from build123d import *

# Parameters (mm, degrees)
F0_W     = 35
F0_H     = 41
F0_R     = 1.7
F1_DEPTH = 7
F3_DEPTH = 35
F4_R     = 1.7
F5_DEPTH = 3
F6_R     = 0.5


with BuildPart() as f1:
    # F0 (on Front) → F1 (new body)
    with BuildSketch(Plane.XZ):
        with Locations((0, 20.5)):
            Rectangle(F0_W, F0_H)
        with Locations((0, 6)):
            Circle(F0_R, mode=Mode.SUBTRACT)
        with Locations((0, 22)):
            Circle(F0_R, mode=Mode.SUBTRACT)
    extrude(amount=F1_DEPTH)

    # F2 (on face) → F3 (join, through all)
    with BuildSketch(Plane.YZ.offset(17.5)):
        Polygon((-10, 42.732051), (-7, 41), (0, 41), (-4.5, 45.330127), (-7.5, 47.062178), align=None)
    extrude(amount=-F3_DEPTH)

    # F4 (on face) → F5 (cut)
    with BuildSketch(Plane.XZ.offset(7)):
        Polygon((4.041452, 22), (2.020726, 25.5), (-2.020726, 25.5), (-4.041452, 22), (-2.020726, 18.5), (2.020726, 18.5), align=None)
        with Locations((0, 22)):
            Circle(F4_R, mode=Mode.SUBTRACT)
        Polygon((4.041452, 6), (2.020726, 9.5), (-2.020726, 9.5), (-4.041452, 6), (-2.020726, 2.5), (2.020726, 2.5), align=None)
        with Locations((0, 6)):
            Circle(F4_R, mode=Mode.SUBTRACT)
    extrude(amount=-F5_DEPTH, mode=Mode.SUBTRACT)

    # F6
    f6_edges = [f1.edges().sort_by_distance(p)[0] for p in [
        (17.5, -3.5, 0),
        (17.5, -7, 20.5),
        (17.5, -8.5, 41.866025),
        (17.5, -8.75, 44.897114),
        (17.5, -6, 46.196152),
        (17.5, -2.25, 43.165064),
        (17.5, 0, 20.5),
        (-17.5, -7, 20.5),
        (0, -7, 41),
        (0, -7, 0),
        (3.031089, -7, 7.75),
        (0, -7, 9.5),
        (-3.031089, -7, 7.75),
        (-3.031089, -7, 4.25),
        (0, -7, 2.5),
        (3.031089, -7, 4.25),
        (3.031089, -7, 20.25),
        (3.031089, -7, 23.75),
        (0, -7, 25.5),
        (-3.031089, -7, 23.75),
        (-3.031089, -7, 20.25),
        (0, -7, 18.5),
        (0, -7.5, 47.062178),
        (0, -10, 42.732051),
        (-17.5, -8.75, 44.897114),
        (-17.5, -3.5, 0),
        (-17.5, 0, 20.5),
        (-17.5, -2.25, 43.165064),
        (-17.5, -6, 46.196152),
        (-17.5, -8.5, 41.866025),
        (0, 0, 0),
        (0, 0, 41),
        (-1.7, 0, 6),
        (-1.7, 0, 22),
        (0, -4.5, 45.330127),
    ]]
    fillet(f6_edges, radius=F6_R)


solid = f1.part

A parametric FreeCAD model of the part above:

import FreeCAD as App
import Part
import Sketcher

V = App.Vector
Q = App.Units.Quantity


def edges_at(feature, points):
    """Names of the edges that pass closest to the given points."""
    edges = feature.Shape.Edges
    near = lambda p: min(range(len(edges)), key=lambda i: edges[i].distToShape(Part.Vertex(*p))[0])
    return sorted({f"Edge{near(p) + 1}" for p in points})

doc = App.newDocument("Part")
params = doc.addObject("Spreadsheet::Sheet", "Params")
for row, (alias, value) in enumerate([
    ("sketch1_diameter", "3.4 mm"),
    ("sketch1_width", "35 mm"),
    ("sketch1_height", "41 mm"),
    ("pad1_length", "7 mm"),
    ("sketch2_width", "7 mm"),
    ("sketch2_length", "5 mm"),
    ("pad2_length", "35 mm"),
    ("sketch3_diameter", "3.4 mm"),
    ("pocket1_length", "3 mm"),
    ("fillet_radius", "0.5 mm"),
], start=1):
    params.set(f"A{row}", alias)
    params.set(f"B{row}", "=" + value)
    params.setAlias(f"B{row}", alias)

body = doc.addObject("PartDesign::Body", "Body")

# Sketch on XZ plane
sketch1 = body.newObject("Sketcher::SketchObject", "Sketch")
sketch1.AttachmentSupport = (doc.getObject("XZ_Plane"), [""])
sketch1.MapMode = "FlatFace"
sketch1.addGeometry([
    Part.LineSegment(V(-17.5, 41, 0), V(-17.5, 0, 0)),  # 0
    Part.LineSegment(V(-17.5, 0, 0), V(17.5, 0, 0)),  # 1
    Part.LineSegment(V(17.5, 0, 0), V(17.5, 41, 0)),  # 2
    Part.LineSegment(V(17.5, 41, 0), V(-17.5, 41, 0)),  # 3
    Part.Circle(V(0, 6, 0), V(0, 0, 1), 1.7),  # 4
    Part.Circle(V(0, 22, 0), V(0, 0, 1), 1.7),  # 5
], False)
sketch1.addConstraint([
    Sketcher.Constraint("Coincident", 0, 2, 1, 1),
    Sketcher.Constraint("Coincident", 1, 2, 2, 1),
    Sketcher.Constraint("Coincident", 2, 2, 3, 1),
    Sketcher.Constraint("Coincident", 3, 2, 0, 1),
    Sketcher.Constraint("Vertical", 0),
    Sketcher.Constraint("Horizontal", 1),
    Sketcher.Constraint("Vertical", 2),
    Sketcher.Constraint("Horizontal", 3),
    Sketcher.Constraint("Equal", 4, 5),
    Sketcher.Constraint("Symmetric", 0, 2, 1, 2, -1, 1),
    Sketcher.Constraint("PointOnObject", 4, 3, -2),
    Sketcher.Constraint("PointOnObject", 5, 3, -2),
    Sketcher.Constraint("Diameter", 4, 3.4),
    Sketcher.Constraint("DistanceX", 1, 1, 1, 2, 35.0),
    Sketcher.Constraint("DistanceY", 0, 2, 0, 1, 41.0),
    Sketcher.Constraint("DistanceY", -1, 1, 4, 3, 6.0),
    Sketcher.Constraint("DistanceY", -1, 1, 5, 3, 22.0),
])
sketch1.setExpression("Constraints[12]", "Params.sketch1_diameter")
sketch1.setExpression("Constraints[13]", "Params.sketch1_width")
sketch1.setExpression("Constraints[14]", "Params.sketch1_height")
pad1 = body.newObject("PartDesign::Pad", "Pad")
pad1.Profile = sketch1
pad1.setExpression("Length", "Params.pad1_length")

# Sketch on YZ plane
sketch2 = body.newObject("Sketcher::SketchObject", "Sketch001")
sketch2.AttachmentSupport = (doc.getObject("YZ_Plane"), [""])
sketch2.MapMode = "FlatFace"
sketch2.AttachmentOffset = App.Placement(V(0, 0, 17.5), App.Rotation())
sketch2.addGeometry([
    Part.LineSegment(V(-10, 42.7, 0), V(-7, 41, 0)),  # 0
    Part.LineSegment(V(-7, 41, 0), V(0, 41, 0)),  # 1
    Part.LineSegment(V(0, 41, 0), V(-4.5, 45.3, 0)),  # 2
    Part.LineSegment(V(-4.5, 45.3, 0), V(-7.5, 47.1, 0)),  # 3
    Part.LineSegment(V(-7.5, 47.1, 0), V(-10, 42.7, 0)),  # 4
], False)
sketch2.addConstraint([
    Sketcher.Constraint("Coincident", 0, 2, 1, 1),
    Sketcher.Constraint("Coincident", 1, 2, 2, 1),
    Sketcher.Constraint("Coincident", 2, 2, 3, 1),
    Sketcher.Constraint("Coincident", 3, 2, 4, 1),
    Sketcher.Constraint("Coincident", 4, 2, 0, 1),
    Sketcher.Constraint("Horizontal", 1),
    Sketcher.Constraint("PointOnObject", 1, 2, -2),
    Sketcher.Constraint("Parallel", 0, 3),
    Sketcher.Constraint("Perpendicular", 3, 4),
    Sketcher.Constraint("Equal", 0, 3),
    Sketcher.Constraint("DistanceX", 1, 1, 1, 2, 7.0),
    Sketcher.Constraint("Angle", 0, Q("-30.000003 deg")),
    Sketcher.Constraint("Distance", 4, 5.0),
    Sketcher.Constraint("DistanceY", -1, 1, 0, 2, 41.0),
    Sketcher.Constraint("DistanceX", 4, 2, -1, 1, 10.0),
])
sketch2.setExpression("Constraints[10]", "Params.sketch2_width")
sketch2.setExpression("Constraints[12]", "Params.sketch2_length")
pad2 = body.newObject("PartDesign::Pad", "Pad001")
pad2.Profile = sketch2
pad2.setExpression("Length", "Params.pad2_length")
pad2.Reversed = True

# Sketch on XZ plane
sketch3 = body.newObject("Sketcher::SketchObject", "Sketch002")
sketch3.AttachmentSupport = (doc.getObject("XZ_Plane"), [""])
sketch3.MapMode = "FlatFace"
sketch3.AttachmentOffset = App.Placement(V(0, 0, 7), App.Rotation())
sketch3.addGeometry([
    Part.LineSegment(V(4, 22, 0), V(2, 25.5, 0)),  # 0
    Part.LineSegment(V(2, 25.5, 0), V(-2, 25.5, 0)),  # 1
    Part.LineSegment(V(-2, 25.5, 0), V(-4, 22, 0)),  # 2
    Part.LineSegment(V(-4, 22, 0), V(-2, 18.5, 0)),  # 3
    Part.LineSegment(V(-2, 18.5, 0), V(2, 18.5, 0)),  # 4
    Part.LineSegment(V(2, 18.5, 0), V(4, 22, 0)),  # 5
    Part.Circle(V(0, 22, 0), V(0, 0, 1), 1.7),  # 6
    Part.LineSegment(V(4, 6, 0), V(2, 9.5, 0)),  # 7
    Part.LineSegment(V(2, 9.5, 0), V(-2, 9.5, 0)),  # 8
    Part.LineSegment(V(-2, 9.5, 0), V(-4, 6, 0)),  # 9
    Part.LineSegment(V(-4, 6, 0), V(-2, 2.5, 0)),  # 10
    Part.LineSegment(V(-2, 2.5, 0), V(2, 2.5, 0)),  # 11
    Part.LineSegment(V(2, 2.5, 0), V(4, 6, 0)),  # 12
    Part.Circle(V(0, 6, 0), V(0, 0, 1), 1.7),  # 13
], False)
sketch3.addConstraint([
    Sketcher.Constraint("Coincident", 0, 2, 1, 1),
    Sketcher.Constraint("Coincident", 1, 2, 2, 1),
    Sketcher.Constraint("Coincident", 2, 2, 3, 1),
    Sketcher.Constraint("Coincident", 3, 2, 4, 1),
    Sketcher.Constraint("Coincident", 4, 2, 5, 1),
    Sketcher.Constraint("Coincident", 5, 2, 0, 1),
    Sketcher.Constraint("Coincident", 7, 2, 8, 1),
    Sketcher.Constraint("Coincident", 8, 2, 9, 1),
    Sketcher.Constraint("Coincident", 9, 2, 10, 1),
    Sketcher.Constraint("Coincident", 10, 2, 11, 1),
    Sketcher.Constraint("Coincident", 11, 2, 12, 1),
    Sketcher.Constraint("Coincident", 12, 2, 7, 1),
    Sketcher.Constraint("Horizontal", 1),
    Sketcher.Constraint("Horizontal", 4),
    Sketcher.Constraint("Horizontal", 8),
    Sketcher.Constraint("Horizontal", 11),
    Sketcher.Constraint("Equal", 6, 13),
    Sketcher.Constraint("Symmetric", 2, 2, 5, 2, -2),
    Sketcher.Constraint("Symmetric", 9, 2, 12, 2, -2),
    Sketcher.Constraint("PointOnObject", 6, 3, -2),
    Sketcher.Constraint("PointOnObject", 13, 3, -2),
    Sketcher.Constraint("Parallel", 0, 3),
    Sketcher.Constraint("Parallel", 2, 5),
    Sketcher.Constraint("Parallel", 3, 7),
    Sketcher.Constraint("Parallel", 5, 9),
    Sketcher.Constraint("Parallel", 7, 10),
    Sketcher.Constraint("Parallel", 9, 12),
    Sketcher.Constraint("Horizontal", 6, 3, 2, 2),
    Sketcher.Constraint("Horizontal", 13, 3, 9, 2),
    Sketcher.Constraint("Vertical", 1, 2, 3, 2),
    Sketcher.Constraint("Vertical", 0, 2, 4, 2),
    Sketcher.Constraint("Vertical", 4, 2, 7, 2),
    Sketcher.Constraint("Vertical", 2, 2, 9, 2),
    Sketcher.Constraint("Vertical", 8, 2, 10, 2),
    Sketcher.Constraint("Diameter", 6, 3.4),
    Sketcher.Constraint("Angle", 0, Q("120.000001 deg")),
    Sketcher.Constraint("DistanceY", -1, 1, 6, 3, 22.0),
    Sketcher.Constraint("DistanceY", -1, 1, 13, 3, 6.0),
    Sketcher.Constraint("DistanceY", 3, 2, 1, 2, 7.0),
    Sketcher.Constraint("DistanceX", 1, 2, 1, 1, 4.041452),
])
sketch3.setExpression("Constraints[34]", "Params.sketch3_diameter")
pocket1 = body.newObject("PartDesign::Pocket", "Pocket")
pocket1.Profile = sketch3
pocket1.setExpression("Length", "Params.pocket1_length")
doc.recompute()

fillet = body.newObject("PartDesign::Fillet", "Fillet")
fillet.Base = (pocket1, edges_at(pocket1, [
    (17.5, -3.5, 0),
    (17.5, -7, 20.5),
    (17.5, -8.5, 41.866),
    (17.5, -8.75, 44.897),
    (17.5, -6, 46.196),
    (17.5, -2.25, 43.165),
    (17.5, 0, 20.5),
    (-17.5, -7, 20.5),
    (0, -7, 41),
    (0, -7, 0),
    (3.031, -7, 7.75),
    (0, -7, 9.5),
    (-3.031, -7, 7.75),
    (-3.031, -7, 4.25),
    (0, -7, 2.5),
    (3.031, -7, 4.25),
    (3.031, -7, 20.25),
    (3.031, -7, 23.75),
    (0, -7, 25.5),
    (-3.031, -7, 23.75),
    (-3.031, -7, 20.25),
    (0, -7, 18.5),
    (0, -7.5, 47.062),
    (0, -10, 42.732),
    (-17.5, -8.75, 44.897),
    (-17.5, -3.5, 0),
    (-17.5, 0, 20.5),
    (-17.5, -2.25, 43.165),
    (-17.5, -6, 46.196),
    (-17.5, -8.5, 41.866),
    (0, 0, 0),
    (0, 0, 41),
    (-1.7, 0, 6),
    (-1.7, 0, 22),
    (0, -4.5, 45.33),
]))
fillet.setExpression("Radius", "Params.fillet_radius")

doc.recompute()
